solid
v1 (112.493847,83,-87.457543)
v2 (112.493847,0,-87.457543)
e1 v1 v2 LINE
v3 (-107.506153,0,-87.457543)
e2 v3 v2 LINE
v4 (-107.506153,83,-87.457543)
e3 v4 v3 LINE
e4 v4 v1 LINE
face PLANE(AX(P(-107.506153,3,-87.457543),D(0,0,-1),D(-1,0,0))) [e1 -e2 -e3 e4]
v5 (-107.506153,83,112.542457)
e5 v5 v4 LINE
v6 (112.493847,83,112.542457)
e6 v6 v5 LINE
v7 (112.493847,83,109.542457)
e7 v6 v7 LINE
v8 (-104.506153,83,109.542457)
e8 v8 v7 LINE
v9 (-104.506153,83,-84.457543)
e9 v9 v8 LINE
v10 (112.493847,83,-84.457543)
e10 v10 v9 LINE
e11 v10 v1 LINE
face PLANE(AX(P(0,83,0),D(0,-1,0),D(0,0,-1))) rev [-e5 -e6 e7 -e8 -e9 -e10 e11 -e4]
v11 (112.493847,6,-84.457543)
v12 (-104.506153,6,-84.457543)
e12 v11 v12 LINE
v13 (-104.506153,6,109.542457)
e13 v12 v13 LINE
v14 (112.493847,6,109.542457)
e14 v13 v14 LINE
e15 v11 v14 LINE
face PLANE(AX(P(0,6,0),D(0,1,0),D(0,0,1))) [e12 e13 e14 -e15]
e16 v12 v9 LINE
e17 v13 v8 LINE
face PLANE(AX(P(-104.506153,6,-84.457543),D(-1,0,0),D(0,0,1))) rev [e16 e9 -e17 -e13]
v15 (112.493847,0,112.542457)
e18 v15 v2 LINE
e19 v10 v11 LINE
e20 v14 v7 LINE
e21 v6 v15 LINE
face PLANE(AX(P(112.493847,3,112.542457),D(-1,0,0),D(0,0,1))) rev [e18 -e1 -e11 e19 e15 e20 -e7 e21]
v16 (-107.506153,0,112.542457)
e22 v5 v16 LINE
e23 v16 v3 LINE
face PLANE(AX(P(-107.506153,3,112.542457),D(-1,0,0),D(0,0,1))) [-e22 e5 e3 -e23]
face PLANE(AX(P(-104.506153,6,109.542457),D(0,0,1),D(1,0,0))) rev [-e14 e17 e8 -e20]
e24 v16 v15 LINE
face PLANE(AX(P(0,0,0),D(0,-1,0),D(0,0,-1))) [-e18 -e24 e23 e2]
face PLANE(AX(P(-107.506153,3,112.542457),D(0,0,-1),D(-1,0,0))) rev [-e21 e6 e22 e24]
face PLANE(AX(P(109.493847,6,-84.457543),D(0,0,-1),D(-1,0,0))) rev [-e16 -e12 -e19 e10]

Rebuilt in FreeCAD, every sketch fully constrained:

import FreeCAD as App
import Part
import Sketcher

V = App.Vector


def add_polygon(sketch, points):
    """Adds a closed chain of lines whose ends are joined by coincident constraints."""
    first, n = sketch.GeometryCount, len(points)
    for a, b in zip(points, points[1:] + points[:1]):
        sketch.addGeometry(Part.LineSegment(App.Vector(*a, 0), App.Vector(*b, 0)), False)
    for i in range(n):
        sketch.addConstraint(Sketcher.Constraint("Coincident", first + i, 2, first + (i + 1) % n, 1))

doc = App.newDocument("Part")
body = doc.addObject("PartDesign::Body", "Body")

# Sketch on XZ plane
sketch1 = body.newObject("Sketcher::SketchObject", "Sketch")
sketch1.AttachmentSupport = (doc.getObject("XZ_Plane"), [""])
sketch1.MapMode = "FlatFace"
add_polygon(sketch1, [(-108, -87), (-108, 113), (112, 113), (112, -87)])  # lines 0-3
sketch1.addConstraint([
    Sketcher.Constraint("Vertical", 0),
    Sketcher.Constraint("Horizontal", 1),
    Sketcher.Constraint("Vertical", 2),
    Sketcher.Constraint("Horizontal", 3),
    Sketcher.Constraint("DistanceX", 1, 1, 1, 2, 220.0),
    Sketcher.Constraint("DistanceY", 0, 1, 0, 2, 200.0),
    Sketcher.Constraint("DistanceX", 0, 2, -1, 1, 107.506153),
    Sketcher.Constraint("DistanceY", -1, 1, 0, 2, 112.542457),
])
pad1 = body.newObject("PartDesign::Pad", "Pad")
pad1.Profile = sketch1
pad1.Length = 3
pad1.Reversed = True

# Sketch on XZ plane
sketch2 = body.newObject("Sketcher::SketchObject", "Sketch001")
sketch2.AttachmentSupport = (doc.getObject("XZ_Plane"), [""])
sketch2.MapMode = "FlatFace"
sketch2.AttachmentOffset = App.Placement(V(0, 0, -3), App.Rotation())
add_polygon(sketch2, [(-108, -87), (-108, 113), (112, 113), (112, -87)])  # lines 0-3
sketch2.addConstraint([
    Sketcher.Constraint("Vertical", 0),
    Sketcher.Constraint("Horizontal", 1),
    Sketcher.Constraint("Vertical", 2),
    Sketcher.Constraint("Horizontal", 3),
    Sketcher.Constraint("DistanceX", 1, 1, 1, 2, 220.0),
    Sketcher.Constraint("DistanceY", 0, 1, 0, 2, 200.0),
    Sketcher.Constraint("DistanceX", 0, 2, -1, 1, 107.506153),
    Sketcher.Constraint("DistanceY", -1, 1, 0, 2, 112.542457),
])
pad2 = body.newObject("PartDesign::Pad", "Pad001")
pad2.Profile = sketch2
pad2.Length = 80
pad2.Reversed = True

# Sketch on XZ plane
sketch3 = body.newObject("Sketcher::SketchObject", "Sketch002")
sketch3.AttachmentSupport = (doc.getObject("XZ_Plane"), [""])
sketch3.MapMode = "FlatFace"
sketch3.AttachmentOffset = App.Placement(V(0, 0, -83), App.Rotation())
add_polygon(sketch3, [(-105, -84), (-105, 110), (109, 110), (109, -84)])  # lines 0-3
sketch3.addConstraint([
    Sketcher.Constraint("Vertical", 0),
    Sketcher.Constraint("Horizontal", 1),
    Sketcher.Constraint("Vertical", 2),
    Sketcher.Constraint("Horizontal", 3),
    Sketcher.Constraint("DistanceX", 1, 1, 1, 2, 214.0),
    Sketcher.Constraint("DistanceY", 0, 1, 0, 2, 194.0),
    Sketcher.Constraint("DistanceX", 0, 2, -1, 1, 104.506153),
    Sketcher.Constraint("DistanceY", -1, 1, 0, 2, 109.542457),
])
pocket1 = body.newObject("PartDesign::Pocket", "Pocket")
pocket1.Profile = sketch3
pocket1.Length = 77
pocket1.Reversed = True

# Sketch on YZ plane
sketch4 = body.newObject("Sketcher::SketchObject", "Sketch003")
sketch4.AttachmentSupport = (doc.getObject("YZ_Plane"), [""])
sketch4.MapMode = "FlatFace"
sketch4.AttachmentOffset = App.Placement(V(0, 0, 109.493847), App.Rotation())
add_polygon(sketch4, [(83, -84), (6, -84), (6, 110), (83, 110)])  # lines 0-3
sketch4.addConstraint([
    Sketcher.Constraint("Horizontal", 0),
    Sketcher.Constraint("Vertical", 1),
    Sketcher.Constraint("Horizontal", 2),
    Sketcher.Constraint("Vertical", 3),
    Sketcher.Constraint("DistanceX", 0, 2, 0, 1, 77.0),
    Sketcher.Constraint("DistanceY", 1, 1, 1, 2, 194.0),
    Sketcher.Constraint("DistanceX", -1, 1, 0, 2, 6.0),
    Sketcher.Constraint("DistanceY", 0, 2, -1, 1, 84.457543),
])
pocket2 = body.newObject("PartDesign::Pocket", "Pocket001")
pocket2.Profile = sketch4
pocket2.Length = 197
pocket2.Reversed = True

doc.recompute()
